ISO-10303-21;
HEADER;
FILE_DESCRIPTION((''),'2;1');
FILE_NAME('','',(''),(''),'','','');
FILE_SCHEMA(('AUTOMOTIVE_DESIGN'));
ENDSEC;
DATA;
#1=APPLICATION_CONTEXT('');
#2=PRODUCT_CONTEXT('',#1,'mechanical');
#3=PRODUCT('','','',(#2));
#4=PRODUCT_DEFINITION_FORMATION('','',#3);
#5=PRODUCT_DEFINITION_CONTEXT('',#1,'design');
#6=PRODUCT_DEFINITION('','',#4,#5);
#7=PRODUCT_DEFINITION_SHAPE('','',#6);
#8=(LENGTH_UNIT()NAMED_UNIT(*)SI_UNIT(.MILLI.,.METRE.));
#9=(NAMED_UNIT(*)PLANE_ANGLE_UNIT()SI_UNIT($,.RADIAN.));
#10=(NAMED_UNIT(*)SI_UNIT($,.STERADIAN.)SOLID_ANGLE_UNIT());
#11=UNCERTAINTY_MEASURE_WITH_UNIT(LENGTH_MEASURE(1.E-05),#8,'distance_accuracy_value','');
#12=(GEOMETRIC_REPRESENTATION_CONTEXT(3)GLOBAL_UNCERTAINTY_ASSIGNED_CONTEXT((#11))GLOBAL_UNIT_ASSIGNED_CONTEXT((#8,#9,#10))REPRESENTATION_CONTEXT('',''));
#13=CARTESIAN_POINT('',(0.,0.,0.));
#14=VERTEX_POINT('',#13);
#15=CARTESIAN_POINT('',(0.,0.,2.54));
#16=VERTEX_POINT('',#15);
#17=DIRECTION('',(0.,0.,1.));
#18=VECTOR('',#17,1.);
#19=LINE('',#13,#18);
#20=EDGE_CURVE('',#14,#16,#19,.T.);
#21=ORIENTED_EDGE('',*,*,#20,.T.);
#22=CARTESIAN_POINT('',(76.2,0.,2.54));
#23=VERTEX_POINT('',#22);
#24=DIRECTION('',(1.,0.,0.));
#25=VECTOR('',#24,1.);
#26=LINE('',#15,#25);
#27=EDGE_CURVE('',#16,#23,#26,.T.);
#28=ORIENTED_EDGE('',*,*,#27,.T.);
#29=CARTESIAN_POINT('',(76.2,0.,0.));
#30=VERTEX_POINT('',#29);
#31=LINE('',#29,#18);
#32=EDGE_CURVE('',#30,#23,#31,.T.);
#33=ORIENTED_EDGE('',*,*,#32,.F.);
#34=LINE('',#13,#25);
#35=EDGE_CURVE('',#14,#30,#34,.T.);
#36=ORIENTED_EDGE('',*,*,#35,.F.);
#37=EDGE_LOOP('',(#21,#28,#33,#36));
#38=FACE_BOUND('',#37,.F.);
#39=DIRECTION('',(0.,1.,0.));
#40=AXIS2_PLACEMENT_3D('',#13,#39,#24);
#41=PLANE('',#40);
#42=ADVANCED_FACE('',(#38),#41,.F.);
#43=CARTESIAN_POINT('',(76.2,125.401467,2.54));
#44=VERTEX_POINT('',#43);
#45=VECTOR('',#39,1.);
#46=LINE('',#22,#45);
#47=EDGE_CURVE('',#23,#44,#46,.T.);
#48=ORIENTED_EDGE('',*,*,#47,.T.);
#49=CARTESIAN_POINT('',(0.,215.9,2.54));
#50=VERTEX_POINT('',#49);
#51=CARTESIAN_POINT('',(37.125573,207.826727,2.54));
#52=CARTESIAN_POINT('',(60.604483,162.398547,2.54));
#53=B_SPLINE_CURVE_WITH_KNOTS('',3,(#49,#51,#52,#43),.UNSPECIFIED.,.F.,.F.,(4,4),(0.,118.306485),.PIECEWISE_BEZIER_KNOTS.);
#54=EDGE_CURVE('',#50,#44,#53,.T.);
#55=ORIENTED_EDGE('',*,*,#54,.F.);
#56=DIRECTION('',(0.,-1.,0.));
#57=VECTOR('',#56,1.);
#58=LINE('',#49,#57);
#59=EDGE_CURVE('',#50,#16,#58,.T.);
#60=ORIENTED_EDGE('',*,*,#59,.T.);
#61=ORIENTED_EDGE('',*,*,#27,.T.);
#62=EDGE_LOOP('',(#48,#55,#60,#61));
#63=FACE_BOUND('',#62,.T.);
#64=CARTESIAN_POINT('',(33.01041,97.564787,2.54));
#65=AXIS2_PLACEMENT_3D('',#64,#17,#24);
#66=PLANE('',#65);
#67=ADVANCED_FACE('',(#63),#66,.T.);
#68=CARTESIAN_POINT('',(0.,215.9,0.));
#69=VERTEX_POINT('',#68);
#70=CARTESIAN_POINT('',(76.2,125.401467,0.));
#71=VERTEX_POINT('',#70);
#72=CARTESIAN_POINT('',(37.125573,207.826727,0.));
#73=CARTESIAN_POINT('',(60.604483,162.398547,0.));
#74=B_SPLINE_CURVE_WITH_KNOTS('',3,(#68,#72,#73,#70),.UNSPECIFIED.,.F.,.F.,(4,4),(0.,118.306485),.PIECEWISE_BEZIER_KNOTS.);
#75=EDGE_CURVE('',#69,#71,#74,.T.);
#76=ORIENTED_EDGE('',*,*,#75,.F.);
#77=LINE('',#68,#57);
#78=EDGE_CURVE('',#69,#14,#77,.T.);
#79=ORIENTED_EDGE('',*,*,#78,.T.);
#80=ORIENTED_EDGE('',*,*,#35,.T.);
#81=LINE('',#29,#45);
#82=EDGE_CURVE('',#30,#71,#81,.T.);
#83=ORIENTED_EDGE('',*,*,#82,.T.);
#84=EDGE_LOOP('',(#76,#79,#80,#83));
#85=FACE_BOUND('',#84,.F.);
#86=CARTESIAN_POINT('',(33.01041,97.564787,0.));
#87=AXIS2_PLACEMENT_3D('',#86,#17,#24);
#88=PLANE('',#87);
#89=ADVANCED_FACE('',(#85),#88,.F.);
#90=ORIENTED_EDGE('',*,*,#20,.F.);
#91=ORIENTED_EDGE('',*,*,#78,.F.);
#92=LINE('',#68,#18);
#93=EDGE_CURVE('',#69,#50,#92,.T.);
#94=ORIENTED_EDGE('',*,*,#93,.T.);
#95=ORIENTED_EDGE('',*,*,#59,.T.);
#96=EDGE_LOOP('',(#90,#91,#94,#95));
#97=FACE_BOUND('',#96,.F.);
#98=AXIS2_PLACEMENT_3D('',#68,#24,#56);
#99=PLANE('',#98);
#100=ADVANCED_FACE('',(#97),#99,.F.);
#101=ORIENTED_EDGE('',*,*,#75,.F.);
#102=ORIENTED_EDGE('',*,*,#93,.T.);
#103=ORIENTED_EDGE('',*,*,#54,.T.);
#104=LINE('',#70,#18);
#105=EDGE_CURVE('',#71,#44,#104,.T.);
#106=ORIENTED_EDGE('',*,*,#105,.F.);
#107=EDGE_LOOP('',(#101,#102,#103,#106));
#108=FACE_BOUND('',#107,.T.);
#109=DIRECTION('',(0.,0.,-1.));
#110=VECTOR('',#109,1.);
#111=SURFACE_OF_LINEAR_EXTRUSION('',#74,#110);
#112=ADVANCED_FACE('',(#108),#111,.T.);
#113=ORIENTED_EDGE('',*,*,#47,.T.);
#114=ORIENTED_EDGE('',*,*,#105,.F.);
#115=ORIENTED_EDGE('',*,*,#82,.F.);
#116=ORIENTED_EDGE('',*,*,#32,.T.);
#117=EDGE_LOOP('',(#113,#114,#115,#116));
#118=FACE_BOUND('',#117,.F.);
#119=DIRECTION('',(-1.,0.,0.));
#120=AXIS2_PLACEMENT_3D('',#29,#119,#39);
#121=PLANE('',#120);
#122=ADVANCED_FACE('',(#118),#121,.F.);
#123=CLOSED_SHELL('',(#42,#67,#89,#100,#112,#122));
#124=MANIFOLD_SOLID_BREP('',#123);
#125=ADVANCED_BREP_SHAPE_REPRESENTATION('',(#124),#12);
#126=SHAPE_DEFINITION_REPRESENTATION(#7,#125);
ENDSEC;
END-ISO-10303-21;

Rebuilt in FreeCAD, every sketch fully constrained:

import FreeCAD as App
import Part
import Sketcher
Q = App.Units.Quantity

doc = App.newDocument("Part")
body = doc.addObject("PartDesign::Body", "Body")

# Sketch on XY plane
sketch1 = doc.addObject("Sketcher::SketchObject", "Sketch")
body.addObject(sketch1)
sketch1.AttachmentSupport = (doc.XY_Plane, [""])
sketch1.MapMode = "FlatFace"
sketch1.addGeometry(Part.LineSegment(App.Vector(0, 215.9, 0), App.Vector(0, 0, 0)), False)
sketch1.addGeometry(Part.LineSegment(App.Vector(0, 0, 0), App.Vector(76.2, 0, 0)), False)
sketch1.addGeometry(Part.LineSegment(App.Vector(76.2, 0, 0), App.Vector(76.2, 125.401467, 0)), False)
sketch1.addGeometry(Part.BSplineCurve([App.Vector(0, 215.9, 0), App.Vector(37.125573, 207.826727, 0), App.Vector(60.604483, 162.398547, 0), App.Vector(76.2, 125.401467, 0)], [4, 4], [0, 118.306485], False, 3, [1, 1, 1, 1], False), False)
sketch1.addConstraint(Sketcher.Constraint("Block", 3))
sketch1.addConstraint(Sketcher.Constraint("Coincident", 0, 2, 1, 1))
sketch1.addConstraint(Sketcher.Constraint("Coincident", 1, 2, 2, 1))
sketch1.addConstraint(Sketcher.Constraint("Coincident", 2, 2, 3, 2))
sketch1.addConstraint(Sketcher.Constraint("Coincident", 3, 1, 0, 1))
sketch1.addConstraint(Sketcher.Constraint("Vertical", 0))
sketch1.addConstraint(Sketcher.Constraint("Horizontal", 1))
sketch1.addConstraint(Sketcher.Constraint("Vertical", 2))
sketch1.addConstraint(Sketcher.Constraint("PointOnObject", 1, 2, -1))
pad1 = doc.addObject("PartDesign::Pad", "Pad")
body.addObject(pad1)
pad1.Profile = sketch1
pad1.Length = Q("0.1 in")

doc.recompute()
